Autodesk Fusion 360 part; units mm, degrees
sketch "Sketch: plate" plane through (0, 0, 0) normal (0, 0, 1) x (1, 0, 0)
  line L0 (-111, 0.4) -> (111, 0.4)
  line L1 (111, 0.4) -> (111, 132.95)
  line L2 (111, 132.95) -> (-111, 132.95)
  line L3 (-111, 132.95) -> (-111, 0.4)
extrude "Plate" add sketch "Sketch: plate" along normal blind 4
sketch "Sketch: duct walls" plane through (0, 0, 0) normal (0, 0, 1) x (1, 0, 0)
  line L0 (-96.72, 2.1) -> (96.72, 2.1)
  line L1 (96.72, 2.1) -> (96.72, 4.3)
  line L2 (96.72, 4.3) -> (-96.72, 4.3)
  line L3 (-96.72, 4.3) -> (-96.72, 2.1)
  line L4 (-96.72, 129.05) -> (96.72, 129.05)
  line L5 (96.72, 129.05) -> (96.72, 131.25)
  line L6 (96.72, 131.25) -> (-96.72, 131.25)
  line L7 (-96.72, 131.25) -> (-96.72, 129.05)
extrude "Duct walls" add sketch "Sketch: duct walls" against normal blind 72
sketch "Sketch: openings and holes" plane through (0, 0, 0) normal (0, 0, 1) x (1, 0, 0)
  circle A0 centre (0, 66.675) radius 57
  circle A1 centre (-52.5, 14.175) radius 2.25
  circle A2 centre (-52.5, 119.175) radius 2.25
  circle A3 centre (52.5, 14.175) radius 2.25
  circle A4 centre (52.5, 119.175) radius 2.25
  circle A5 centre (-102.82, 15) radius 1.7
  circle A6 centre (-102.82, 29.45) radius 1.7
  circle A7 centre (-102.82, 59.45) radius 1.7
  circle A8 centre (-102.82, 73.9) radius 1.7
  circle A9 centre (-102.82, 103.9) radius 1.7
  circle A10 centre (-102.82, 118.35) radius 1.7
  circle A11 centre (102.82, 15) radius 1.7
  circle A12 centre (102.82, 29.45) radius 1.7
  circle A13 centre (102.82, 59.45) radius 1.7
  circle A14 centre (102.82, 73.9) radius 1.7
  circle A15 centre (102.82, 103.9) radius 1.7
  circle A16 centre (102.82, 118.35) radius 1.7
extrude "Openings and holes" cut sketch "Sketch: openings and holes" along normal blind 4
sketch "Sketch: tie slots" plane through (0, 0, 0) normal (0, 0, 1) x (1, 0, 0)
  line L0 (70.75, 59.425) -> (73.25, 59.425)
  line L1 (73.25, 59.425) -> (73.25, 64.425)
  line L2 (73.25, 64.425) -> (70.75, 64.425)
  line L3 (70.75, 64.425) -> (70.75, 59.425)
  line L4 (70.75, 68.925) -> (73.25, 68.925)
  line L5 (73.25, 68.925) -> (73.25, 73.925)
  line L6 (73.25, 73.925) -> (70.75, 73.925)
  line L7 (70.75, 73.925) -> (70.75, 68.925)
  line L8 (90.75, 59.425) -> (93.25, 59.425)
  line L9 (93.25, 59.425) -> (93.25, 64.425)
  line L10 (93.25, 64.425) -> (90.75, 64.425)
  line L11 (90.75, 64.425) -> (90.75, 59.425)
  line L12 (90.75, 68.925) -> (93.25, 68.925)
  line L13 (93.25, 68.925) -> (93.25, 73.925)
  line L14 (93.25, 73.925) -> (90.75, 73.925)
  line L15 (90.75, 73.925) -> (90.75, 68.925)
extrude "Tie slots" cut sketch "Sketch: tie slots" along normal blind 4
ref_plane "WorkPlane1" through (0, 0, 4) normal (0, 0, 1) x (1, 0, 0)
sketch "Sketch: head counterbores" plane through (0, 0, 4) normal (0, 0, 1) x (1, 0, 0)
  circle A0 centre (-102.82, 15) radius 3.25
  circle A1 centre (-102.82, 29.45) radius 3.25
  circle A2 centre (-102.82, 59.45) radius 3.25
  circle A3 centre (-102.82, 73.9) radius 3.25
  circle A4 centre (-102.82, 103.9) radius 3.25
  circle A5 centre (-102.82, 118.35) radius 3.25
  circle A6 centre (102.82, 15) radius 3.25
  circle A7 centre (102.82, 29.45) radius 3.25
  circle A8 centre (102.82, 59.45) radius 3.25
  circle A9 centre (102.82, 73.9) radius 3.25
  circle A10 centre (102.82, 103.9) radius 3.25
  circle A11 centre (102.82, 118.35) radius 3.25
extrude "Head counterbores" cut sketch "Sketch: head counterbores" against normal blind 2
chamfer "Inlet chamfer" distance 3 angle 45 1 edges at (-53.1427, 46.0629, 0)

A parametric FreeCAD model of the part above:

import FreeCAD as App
import Part
import Sketcher
from FreeCAD import Vector
Q = App.Units.Quantity


def edges_at(feature, points):
    """Names of the edges that pass closest to the given points."""
    edges = feature.Shape.Edges
    near = lambda p: min(range(len(edges)), key=lambda i: edges[i].distToShape(Part.Vertex(*p))[0])
    return sorted({f"Edge{near(p) + 1}" for p in points})

doc = App.newDocument("Part")
params = doc.addObject("Spreadsheet::Sheet", "Params")
for row, (alias, value) in enumerate([
    ("sketch1_width", "222 mm"),
    ("sketch1_height", "132.55 mm"),
    ("pad1_length", "4 mm"),
    ("sketch2_height", "2.2 mm"),
    ("sketch2_width", "193.44 mm"),
    ("pad2_length", "72 mm"),
    ("sketch3_diameter", "114 mm"),
    ("sketch3_diameter2", "4.5 mm"),
    ("sketch3_diameter3", "3.4 mm"),
    ("pocket1_length", "4 mm"),
    ("sketch4_height", "5 mm"),
    ("sketch4_width", "2.5 mm"),
    ("pocket2_length", "4 mm"),
    ("sketch5_diameter", "6.5 mm"),
    ("pocket3_length", "2 mm"),
    ("chamfer_size", "3 mm"),
], start=1):
    params.set(f"A{row}", alias)
    params.set(f"B{row}", "=" + value)
    params.setAlias(f"B{row}", alias)

body = doc.addObject("PartDesign::Body", "Body")

# Sketch on XY plane
sketch1 = doc.addObject("Sketcher::SketchObject", "Sketch")
body.addObject(sketch1)
sketch1.AttachmentSupport = (doc.XY_Plane, [""])
sketch1.MapMode = "FlatFace"
sketch1.addGeometry(Part.LineSegment(Vector(-111, 132.95, 0), Vector(-111, 0.4, 0)), False)
sketch1.addGeometry(Part.LineSegment(Vector(-111, 0.4, 0), Vector(111, 0.4, 0)), False)
sketch1.addGeometry(Part.LineSegment(Vector(111, 0.4, 0), Vector(111, 132.95, 0)), False)
sketch1.addGeometry(Part.LineSegment(Vector(111, 132.95, 0), Vector(-111, 132.95, 0)), False)
sketch1.addConstraint(Sketcher.Constraint("Coincident", 0, 2, 1, 1))
sketch1.addConstraint(Sketcher.Constraint("Coincident", 1, 2, 2, 1))
sketch1.addConstraint(Sketcher.Constraint("Coincident", 2, 2, 3, 1))
sketch1.addConstraint(Sketcher.Constraint("Coincident", 3, 2, 0, 1))
sketch1.addConstraint(Sketcher.Constraint("Vertical", 0))
sketch1.addConstraint(Sketcher.Constraint("Horizontal", 1))
sketch1.addConstraint(Sketcher.Constraint("Vertical", 2))
sketch1.addConstraint(Sketcher.Constraint("Horizontal", 3))
sketch1.addConstraint(Sketcher.Constraint("DistanceX", 1, 1, 1, 2, Q("222 mm")))
sketch1.addConstraint(Sketcher.Constraint("DistanceX", 0, 2, -1, 1, Q("111 mm")))
sketch1.addConstraint(Sketcher.Constraint("DistanceY", 0, 2, 0, 1, Q("132.55 mm")))
sketch1.addConstraint(Sketcher.Constraint("DistanceY", -1, 1, 0, 2, Q("0.4 mm")))
sketch1.setExpression("Constraints[8]", "Params.sketch1_width")
sketch1.setExpression("Constraints[10]", "Params.sketch1_height")
pad1 = doc.addObject("PartDesign::Pad", "Pad")
body.addObject(pad1)
pad1.Profile = sketch1
pad1.setExpression("Length", "Params.pad1_length")

# Sketch on XY plane
sketch2 = doc.addObject("Sketcher::SketchObject", "Sketch001")
body.addObject(sketch2)
sketch2.AttachmentSupport = (doc.XY_Plane, [""])
sketch2.MapMode = "FlatFace"
sketch2.addGeometry(Part.LineSegment(Vector(-96.72, 4.3, 0), Vector(-96.72, 2.1, 0)), False)
sketch2.addGeometry(Part.LineSegment(Vector(-96.72, 2.1, 0), Vector(96.72, 2.1, 0)), False)
sketch2.addGeometry(Part.LineSegment(Vector(96.72, 2.1, 0), Vector(96.72, 4.3, 0)), False)
sketch2.addGeometry(Part.LineSegment(Vector(96.72, 4.3, 0), Vector(-96.72, 4.3, 0)), False)
sketch2.addGeometry(Part.LineSegment(Vector(-96.72, 131.25, 0), Vector(-96.72, 129.05, 0)), False)
sketch2.addGeometry(Part.LineSegment(Vector(-96.72, 129.05, 0), Vector(96.72, 129.05, 0)), False)
sketch2.addGeometry(Part.LineSegment(Vector(96.72, 129.05, 0), Vector(96.72, 131.25, 0)), False)
sketch2.addGeometry(Part.LineSegment(Vector(96.72, 131.25, 0), Vector(-96.72, 131.25, 0)), False)
sketch2.addConstraint(Sketcher.Constraint("Coincident", 0, 2, 1, 1))
sketch2.addConstraint(Sketcher.Constraint("Coincident", 1, 2, 2, 1))
sketch2.addConstraint(Sketcher.Constraint("Coincident", 2, 2, 3, 1))
sketch2.addConstraint(Sketcher.Constraint("Coincident", 3, 2, 0, 1))
sketch2.addConstraint(Sketcher.Constraint("Coincident", 4, 2, 5, 1))
sketch2.addConstraint(Sketcher.Constraint("Coincident", 5, 2, 6, 1))
sketch2.addConstraint(Sketcher.Constraint("Coincident", 6, 2, 7, 1))
sketch2.addConstraint(Sketcher.Constraint("Coincident", 7, 2, 4, 1))
sketch2.addConstraint(Sketcher.Constraint("Vertical", 0))
sketch2.addConstraint(Sketcher.Constraint("Horizontal", 1))
sketch2.addConstraint(Sketcher.Constraint("Vertical", 2))
sketch2.addConstraint(Sketcher.Constraint("Horizontal", 3))
sketch2.addConstraint(Sketcher.Constraint("Vertical", 4))
sketch2.addConstraint(Sketcher.Constraint("Horizontal", 5))
sketch2.addConstraint(Sketcher.Constraint("Vertical", 6))
sketch2.addConstraint(Sketcher.Constraint("Horizontal", 7))
sketch2.addConstraint(Sketcher.Constraint("Vertical", 3, 2, 4, 2))
sketch2.addConstraint(Sketcher.Constraint("Vertical", 2, 2, 5, 2))
sketch2.addConstraint(Sketcher.Constraint("Equal", 2, 4))
sketch2.addConstraint(Sketcher.Constraint("DistanceY", 0, 2, 0, 1, Q("2.2 mm")))
sketch2.addConstraint(Sketcher.Constraint("DistanceX", 1, 1, 1, 2, Q("193.44 mm")))
sketch2.addConstraint(Sketcher.Constraint("DistanceY", -1, 1, 0, 2, Q("2.1 mm")))
sketch2.addConstraint(Sketcher.Constraint("DistanceX", 0, 2, -1, 1, Q("96.72 mm")))
sketch2.addConstraint(Sketcher.Constraint("DistanceY", -1, 1, 4, 2, Q("129.05 mm")))
sketch2.setExpression("Constraints[19]", "Params.sketch2_height")
sketch2.setExpression("Constraints[20]", "Params.sketch2_width")
pad2 = doc.addObject("PartDesign::Pad", "Pad001")
body.addObject(pad2)
pad2.Profile = sketch2
pad2.setExpression("Length", "Params.pad2_length")
pad2.Reversed = True

# Sketch on XY plane
sketch3 = doc.addObject("Sketcher::SketchObject", "Sketch002")
body.addObject(sketch3)
sketch3.AttachmentSupport = (doc.XY_Plane, [""])
sketch3.MapMode = "FlatFace"
sketch3.addGeometry(Part.Circle(Vector(0, 66.675, 0), Vector(0, 0, 1), 57), False)
sketch3.addGeometry(Part.Circle(Vector(-52.5, 14.175, 0), Vector(0, 0, 1), 2.25), False)
sketch3.addGeometry(Part.Circle(Vector(-52.5, 119.175, 0), Vector(0, 0, 1), 2.25), False)
sketch3.addGeometry(Part.Circle(Vector(52.5, 14.175, 0), Vector(0, 0, 1), 2.25), False)
sketch3.addGeometry(Part.Circle(Vector(52.5, 119.175, 0), Vector(0, 0, 1), 2.25), False)
sketch3.addGeometry(Part.Circle(Vector(-102.82, 15, 0), Vector(0, 0, 1), 1.7), False)
sketch3.addGeometry(Part.Circle(Vector(-102.82, 29.45, 0), Vector(0, 0, 1), 1.7), False)
sketch3.addGeometry(Part.Circle(Vector(-102.82, 59.45, 0), Vector(0, 0, 1), 1.7), False)
sketch3.addGeometry(Part.Circle(Vector(-102.82, 73.9, 0), Vector(0, 0, 1), 1.7), False)
sketch3.addGeometry(Part.Circle(Vector(-102.82, 103.9, 0), Vector(0, 0, 1), 1.7), False)
sketch3.addGeometry(Part.Circle(Vector(-102.82, 118.35, 0), Vector(0, 0, 1), 1.7), False)
sketch3.addGeometry(Part.Circle(Vector(102.82, 15, 0), Vector(0, 0, 1), 1.7), False)
sketch3.addGeometry(Part.Circle(Vector(102.82, 29.45, 0), Vector(0, 0, 1), 1.7), False)
sketch3.addGeometry(Part.Circle(Vector(102.82, 59.45, 0), Vector(0, 0, 1), 1.7), False)
sketch3.addGeometry(Part.Circle(Vector(102.82, 73.9, 0), Vector(0, 0, 1), 1.7), False)
sketch3.addGeometry(Part.Circle(Vector(102.82, 103.9, 0), Vector(0, 0, 1), 1.7), False)
sketch3.addGeometry(Part.Circle(Vector(102.82, 118.35, 0), Vector(0, 0, 1), 1.7), False)
sketch3.addConstraint(Sketcher.Constraint("Equal", 1, 2))
sketch3.addConstraint(Sketcher.Constraint("Equal", 2, 3))
sketch3.addConstraint(Sketcher.Constraint("Equal", 3, 4))
sketch3.addConstraint(Sketcher.Constraint("Equal", 5, 6))
sketch3.addConstraint(Sketcher.Constraint("Equal", 6, 7))
sketch3.addConstraint(Sketcher.Constraint("Equal", 7, 8))
sketch3.addConstraint(Sketcher.Constraint("Equal", 8, 9))
sketch3.addConstraint(Sketcher.Constraint("Equal", 9, 10))
sketch3.addConstraint(Sketcher.Constraint("Equal", 10, 11))
sketch3.addConstraint(Sketcher.Constraint("Equal", 11, 12))
sketch3.addConstraint(Sketcher.Constraint("Equal", 12, 13))
sketch3.addConstraint(Sketcher.Constraint("Equal", 13, 14))
sketch3.addConstraint(Sketcher.Constraint("Equal", 14, 15))
sketch3.addConstraint(Sketcher.Constraint("Equal", 15, 16))
sketch3.addConstraint(Sketcher.Constraint("Symmetric", 1, 3, 3, 3, -2))
sketch3.addConstraint(Sketcher.Constraint("Symmetric", 2, 3, 4, 3, -2))
sketch3.addConstraint(Sketcher.Constraint("Symmetric", 5, 3, 11, 3, -2))
sketch3.addConstraint(Sketcher.Constraint("Symmetric", 6, 3, 12, 3, -2))
sketch3.addConstraint(Sketcher.Constraint("Symmetric", 7, 3, 13, 3, -2))
sketch3.addConstraint(Sketcher.Constraint("Symmetric", 8, 3, 14, 3, -2))
sketch3.addConstraint(Sketcher.Constraint("Symmetric", 9, 3, 15, 3, -2))
sketch3.addConstraint(Sketcher.Constraint("Symmetric", 10, 3, 16, 3, -2))
sketch3.addConstraint(Sketcher.Constraint("PointOnObject", 0, 3, -2))
sketch3.addConstraint(Sketcher.Constraint("Vertical", 1, 3, 2, 3))
sketch3.addConstraint(Sketcher.Constraint("Vertical", 5, 3, 6, 3))
sketch3.addConstraint(Sketcher.Constraint("Vertical", 6, 3, 7, 3))
sketch3.addConstraint(Sketcher.Constraint("Vertical", 7, 3, 8, 3))
sketch3.addConstraint(Sketcher.Constraint("Vertical", 8, 3, 9, 3))
sketch3.addConstraint(Sketcher.Constraint("Vertical", 9, 3, 10, 3))
sketch3.addConstraint(Sketcher.Constraint("Diameter", 0, Q("114 mm")))
sketch3.addConstraint(Sketcher.Constraint("Diameter", 1, Q("4.5 mm")))
sketch3.addConstraint(Sketcher.Constraint("Diameter", 5, Q("3.4 mm")))
sketch3.addConstraint(Sketcher.Constraint("DistanceY", -1, 1, 5, 3, Q("15 mm")))
sketch3.addConstraint(Sketcher.Constraint("DistanceY", 1, 3, 2, 3, Q("105 mm")))
sketch3.addConstraint(Sketcher.Constraint("DistanceX", 1, 3, 3, 3, Q("105 mm")))
sketch3.addConstraint(Sketcher.Constraint("DistanceY", 6, 3, 7, 3, Q("30 mm")))
sketch3.addConstraint(Sketcher.Constraint("DistanceY", 8, 3, 9, 3, Q("30 mm")))
sketch3.addConstraint(Sketcher.Constraint("DistanceY", -1, 1, 8, 3, Q("73.9 mm")))
sketch3.addConstraint(Sketcher.Constraint("DistanceY", 1, 3, 0, 3, Q("52.5 mm")))
sketch3.addConstraint(Sketcher.Constraint("DistanceY", 7, 3, 10, 3, Q("58.9 mm")))
sketch3.addConstraint(Sketcher.Constraint("DistanceX", 5, 3, -1, 1, Q("102.82 mm")))
sketch3.addConstraint(Sketcher.Constraint("DistanceY", -1, 1, 6, 3, Q("29.45 mm")))
sketch3.addConstraint(Sketcher.Constraint("DistanceY", -1, 1, 0, 3, Q("66.675 mm")))
sketch3.setExpression("Constraints[29]", "Params.sketch3_diameter")
sketch3.setExpression("Constraints[30]", "Params.sketch3_diameter2")
sketch3.setExpression("Constraints[31]", "Params.sketch3_diameter3")
pocket1 = doc.addObject("PartDesign::Pocket", "Pocket")
body.addObject(pocket1)
pocket1.Profile = sketch3
pocket1.setExpression("Length", "Params.pocket1_length")
pocket1.Reversed = True

# Sketch on XY plane
sketch4 = doc.addObject("Sketcher::SketchObject", "Sketch003")
body.addObject(sketch4)
sketch4.AttachmentSupport = (doc.XY_Plane, [""])
sketch4.MapMode = "FlatFace"
sketch4.addGeometry(Part.LineSegment(Vector(70.75, 64.425, 0), Vector(70.75, 59.425, 0)), False)
sketch4.addGeometry(Part.LineSegment(Vector(70.75, 59.425, 0), Vector(73.25, 59.425, 0)), False)
sketch4.addGeometry(Part.LineSegment(Vector(73.25, 59.425, 0), Vector(73.25, 64.425, 0)), False)
sketch4.addGeometry(Part.LineSegment(Vector(73.25, 64.425, 0), Vector(70.75, 64.425, 0)), False)
sketch4.addGeometry(Part.LineSegment(Vector(70.75, 73.925, 0), Vector(70.75, 68.925, 0)), False)
sketch4.addGeometry(Part.LineSegment(Vector(70.75, 68.925, 0), Vector(73.25, 68.925, 0)), False)
sketch4.addGeometry(Part.LineSegment(Vector(73.25, 68.925, 0), Vector(73.25, 73.925, 0)), False)
sketch4.addGeometry(Part.LineSegment(Vector(73.25, 73.925, 0), Vector(70.75, 73.925, 0)), False)
sketch4.addGeometry(Part.LineSegment(Vector(90.75, 64.425, 0), Vector(90.75, 59.425, 0)), False)
sketch4.addGeometry(Part.LineSegment(Vector(90.75, 59.425, 0), Vector(93.25, 59.425, 0)), False)
sketch4.addGeometry(Part.LineSegment(Vector(93.25, 59.425, 0), Vector(93.25, 64.425, 0)), False)
sketch4.addGeometry(Part.LineSegment(Vector(93.25, 64.425, 0), Vector(90.75, 64.425, 0)), False)
sketch4.addGeometry(Part.LineSegment(Vector(90.75, 73.925, 0), Vector(90.75, 68.925, 0)), False)
sketch4.addGeometry(Part.LineSegment(Vector(90.75, 68.925, 0), Vector(93.25, 68.925, 0)), False)
sketch4.addGeometry(Part.LineSegment(Vector(93.25, 68.925, 0), Vector(93.25, 73.925, 0)), False)
sketch4.addGeometry(Part.LineSegment(Vector(93.25, 73.925, 0), Vector(90.75, 73.925, 0)), False)
sketch4.addConstraint(Sketcher.Constraint("Coincident", 0, 2, 1, 1))
sketch4.addConstraint(Sketcher.Constraint("Coincident", 1, 2, 2, 1))
sketch4.addConstraint(Sketcher.Constraint("Coincident", 2, 2, 3, 1))
sketch4.addConstraint(Sketcher.Constraint("Coincident", 3, 2, 0, 1))
sketch4.addConstraint(Sketcher.Constraint("Coincident", 4, 2, 5, 1))
sketch4.addConstraint(Sketcher.Constraint("Coincident", 5, 2, 6, 1))
sketch4.addConstraint(Sketcher.Constraint("Coincident", 6, 2, 7, 1))
sketch4.addConstraint(Sketcher.Constraint("Coincident", 7, 2, 4, 1))
sketch4.addConstraint(Sketcher.Constraint("Coincident", 8, 2, 9, 1))
sketch4.addConstraint(Sketcher.Constraint("Coincident", 9, 2, 10, 1))
sketch4.addConstraint(Sketcher.Constraint("Coincident", 10, 2, 11, 1))
sketch4.addConstraint(Sketcher.Constraint("Coincident", 11, 2, 8, 1))
sketch4.addConstraint(Sketcher.Constraint("Coincident", 12, 2, 13, 1))
sketch4.addConstraint(Sketcher.Constraint("Coincident", 13, 2, 14, 1))
sketch4.addConstraint(Sketcher.Constraint("Coincident", 14, 2, 15, 1))
sketch4.addConstraint(Sketcher.Constraint("Coincident", 15, 2, 12, 1))
sketch4.addConstraint(Sketcher.Constraint("Vertical", 0))
sketch4.addConstraint(Sketcher.Constraint("Horizontal", 1))
sketch4.addConstraint(Sketcher.Constraint("Vertical", 2))
sketch4.addConstraint(Sketcher.Constraint("Horizontal", 3))
sketch4.addConstraint(Sketcher.Constraint("Vertical", 4))
sketch4.addConstraint(Sketcher.Constraint("Horizontal", 5))
sketch4.addConstraint(Sketcher.Constraint("Vertical", 6))
sketch4.addConstraint(Sketcher.Constraint("Horizontal", 7))
sketch4.addConstraint(Sketcher.Constraint("Vertical", 8))
sketch4.addConstraint(Sketcher.Constraint("Horizontal", 9))
sketch4.addConstraint(Sketcher.Constraint("Vertical", 10))
sketch4.addConstraint(Sketcher.Constraint("Horizontal", 11))
sketch4.addConstraint(Sketcher.Constraint("Vertical", 12))
sketch4.addConstraint(Sketcher.Constraint("Horizontal", 13))
sketch4.addConstraint(Sketcher.Constraint("Vertical", 14))
sketch4.addConstraint(Sketcher.Constraint("Horizontal", 15))
sketch4.addConstraint(Sketcher.Constraint("Horizontal", 1, 2, 8, 2))
sketch4.addConstraint(Sketcher.Constraint("Horizontal", 3, 2, 10, 2))
sketch4.addConstraint(Sketcher.Constraint("Horizontal", 5, 2, 12, 2))
sketch4.addConstraint(Sketcher.Constraint("Horizontal", 7, 2, 14, 2))
sketch4.addConstraint(Sketcher.Constraint("Vertical", 3, 2, 4, 2))
sketch4.addConstraint(Sketcher.Constraint("Vertical", 2, 2, 5, 2))
sketch4.addConstraint(Sketcher.Constraint("Vertical", 11, 2, 12, 2))
sketch4.addConstraint(Sketcher.Constraint("Vertical", 10, 2, 13, 2))
sketch4.addConstraint(Sketcher.Constraint("Equal", 7, 9))
sketch4.addConstraint(Sketcher.Constraint("Equal", 2, 4))
sketch4.addConstraint(Sketcher.Constraint("DistanceY", 0, 2, 0, 1, Q("5 mm")))
sketch4.addConstraint(Sketcher.Constraint("DistanceX", 1, 1, 1, 2, Q("2.5 mm")))
sketch4.addConstraint(Sketcher.Constraint("DistanceX", 0, 2, 8, 2, Q("20 mm")))
sketch4.addConstraint(Sketcher.Constraint("DistanceY", 3, 2, 4, 2, Q("4.5 mm")))
sketch4.addConstraint(Sketcher.Constraint("DistanceX", -1, 1, 0, 2, Q("70.75 mm")))
sketch4.addConstraint(Sketcher.Constraint("DistanceY", -1, 1, 0, 2, Q("59.425 mm")))
sketch4.setExpression("Constraints[42]", "Params.sketch4_height")
sketch4.setExpression("Constraints[43]", "Params.sketch4_width")
pocket2 = doc.addObject("PartDesign::Pocket", "Pocket001")
body.addObject(pocket2)
pocket2.Profile = sketch4
pocket2.setExpression("Length", "Params.pocket2_length")
pocket2.Reversed = True

# Sketch on XY plane
sketch5 = doc.addObject("Sketcher::SketchObject", "Sketch004")
body.addObject(sketch5)
sketch5.AttachmentSupport = (doc.XY_Plane, [""])
sketch5.MapMode = "FlatFace"
sketch5.AttachmentOffset = App.Placement(Vector(0, 0, 4), App.Rotation())
sketch5.addGeometry(Part.Circle(Vector(-102.82, 15, 0), Vector(0, 0, 1), 3.25), False)
sketch5.addGeometry(Part.Circle(Vector(-102.82, 29.45, 0), Vector(0, 0, 1), 3.25), False)
sketch5.addGeometry(Part.Circle(Vector(-102.82, 59.45, 0), Vector(0, 0, 1), 3.25), False)
sketch5.addGeometry(Part.Circle(Vector(-102.82, 73.9, 0), Vector(0, 0, 1), 3.25), False)
sketch5.addGeometry(Part.Circle(Vector(-102.82, 103.9, 0), Vector(0, 0, 1), 3.25), False)
sketch5.addGeometry(Part.Circle(Vector(-102.82, 118.35, 0), Vector(0, 0, 1), 3.25), False)
sketch5.addGeometry(Part.Circle(Vector(102.82, 15, 0), Vector(0, 0, 1), 3.25), False)
sketch5.addGeometry(Part.Circle(Vector(102.82, 29.45, 0), Vector(0, 0, 1), 3.25), False)
sketch5.addGeometry(Part.Circle(Vector(102.82, 59.45, 0), Vector(0, 0, 1), 3.25), False)
sketch5.addGeometry(Part.Circle(Vector(102.82, 73.9, 0), Vector(0, 0, 1), 3.25), False)
sketch5.addGeometry(Part.Circle(Vector(102.82, 103.9, 0), Vector(0, 0, 1), 3.25), False)
sketch5.addGeometry(Part.Circle(Vector(102.82, 118.35, 0), Vector(0, 0, 1), 3.25), False)
sketch5.addConstraint(Sketcher.Constraint("Equal", 0, 1))
sketch5.addConstraint(Sketcher.Constraint("Equal", 1, 2))
sketch5.addConstraint(Sketcher.Constraint("Equal", 2, 3))
sketch5.addConstraint(Sketcher.Constraint("Equal", 3, 4))
sketch5.addConstraint(Sketcher.Constraint("Equal", 4, 5))
sketch5.addConstraint(Sketcher.Constraint("Equal", 5, 6))
sketch5.addConstraint(Sketcher.Constraint("Equal", 6, 7))
sketch5.addConstraint(Sketcher.Constraint("Equal", 7, 8))
sketch5.addConstraint(Sketcher.Constraint("Equal", 8, 9))
sketch5.addConstraint(Sketcher.Constraint("Equal", 9, 10))
sketch5.addConstraint(Sketcher.Constraint("Equal", 10, 11))
sketch5.addConstraint(Sketcher.Constraint("Symmetric", 0, 3, 6, 3, -2))
sketch5.addConstraint(Sketcher.Constraint("Symmetric", 1, 3, 7, 3, -2))
sketch5.addConstraint(Sketcher.Constraint("Symmetric", 2, 3, 8, 3, -2))
sketch5.addConstraint(Sketcher.Constraint("Symmetric", 3, 3, 9, 3, -2))
sketch5.addConstraint(Sketcher.Constraint("Symmetric", 4, 3, 10, 3, -2))
sketch5.addConstraint(Sketcher.Constraint("Symmetric", 5, 3, 11, 3, -2))
sketch5.addConstraint(Sketcher.Constraint("Vertical", 0, 3, 1, 3))
sketch5.addConstraint(Sketcher.Constraint("Vertical", 1, 3, 2, 3))
sketch5.addConstraint(Sketcher.Constraint("Vertical", 2, 3, 3, 3))
sketch5.addConstraint(Sketcher.Constraint("Vertical", 3, 3, 4, 3))
sketch5.addConstraint(Sketcher.Constraint("Vertical", 4, 3, 5, 3))
sketch5.addConstraint(Sketcher.Constraint("Diameter", 0, Q("6.5 mm")))
sketch5.addConstraint(Sketcher.Constraint("DistanceY", -1, 1, 0, 3, Q("15 mm")))
sketch5.addConstraint(Sketcher.Constraint("DistanceY", 1, 3, 2, 3, Q("30 mm")))
sketch5.addConstraint(Sketcher.Constraint("DistanceY", 3, 3, 4, 3, Q("30 mm")))
sketch5.addConstraint(Sketcher.Constraint("DistanceY", -1, 1, 3, 3, Q("73.9 mm")))
sketch5.addConstraint(Sketcher.Constraint("DistanceY", 2, 3, 5, 3, Q("58.9 mm")))
sketch5.addConstraint(Sketcher.Constraint("DistanceX", 0, 3, -1, 1, Q("102.82 mm")))
sketch5.addConstraint(Sketcher.Constraint("DistanceY", -1, 1, 1, 3, Q("29.45 mm")))
sketch5.setExpression("Constraints[22]", "Params.sketch5_diameter")
pocket3 = doc.addObject("PartDesign::Pocket", "Pocket002")
body.addObject(pocket3)
pocket3.Profile = sketch5
pocket3.setExpression("Length", "Params.pocket3_length")
doc.recompute()

chamfer = doc.addObject("PartDesign::Chamfer", "Chamfer")
body.addObject(chamfer)
chamfer.Base = (pocket3, edges_at(pocket3, [(-53.143, 46.063, 0)]))
chamfer.setExpression("Size", "Params.chamfer_size")

doc.recompute()
